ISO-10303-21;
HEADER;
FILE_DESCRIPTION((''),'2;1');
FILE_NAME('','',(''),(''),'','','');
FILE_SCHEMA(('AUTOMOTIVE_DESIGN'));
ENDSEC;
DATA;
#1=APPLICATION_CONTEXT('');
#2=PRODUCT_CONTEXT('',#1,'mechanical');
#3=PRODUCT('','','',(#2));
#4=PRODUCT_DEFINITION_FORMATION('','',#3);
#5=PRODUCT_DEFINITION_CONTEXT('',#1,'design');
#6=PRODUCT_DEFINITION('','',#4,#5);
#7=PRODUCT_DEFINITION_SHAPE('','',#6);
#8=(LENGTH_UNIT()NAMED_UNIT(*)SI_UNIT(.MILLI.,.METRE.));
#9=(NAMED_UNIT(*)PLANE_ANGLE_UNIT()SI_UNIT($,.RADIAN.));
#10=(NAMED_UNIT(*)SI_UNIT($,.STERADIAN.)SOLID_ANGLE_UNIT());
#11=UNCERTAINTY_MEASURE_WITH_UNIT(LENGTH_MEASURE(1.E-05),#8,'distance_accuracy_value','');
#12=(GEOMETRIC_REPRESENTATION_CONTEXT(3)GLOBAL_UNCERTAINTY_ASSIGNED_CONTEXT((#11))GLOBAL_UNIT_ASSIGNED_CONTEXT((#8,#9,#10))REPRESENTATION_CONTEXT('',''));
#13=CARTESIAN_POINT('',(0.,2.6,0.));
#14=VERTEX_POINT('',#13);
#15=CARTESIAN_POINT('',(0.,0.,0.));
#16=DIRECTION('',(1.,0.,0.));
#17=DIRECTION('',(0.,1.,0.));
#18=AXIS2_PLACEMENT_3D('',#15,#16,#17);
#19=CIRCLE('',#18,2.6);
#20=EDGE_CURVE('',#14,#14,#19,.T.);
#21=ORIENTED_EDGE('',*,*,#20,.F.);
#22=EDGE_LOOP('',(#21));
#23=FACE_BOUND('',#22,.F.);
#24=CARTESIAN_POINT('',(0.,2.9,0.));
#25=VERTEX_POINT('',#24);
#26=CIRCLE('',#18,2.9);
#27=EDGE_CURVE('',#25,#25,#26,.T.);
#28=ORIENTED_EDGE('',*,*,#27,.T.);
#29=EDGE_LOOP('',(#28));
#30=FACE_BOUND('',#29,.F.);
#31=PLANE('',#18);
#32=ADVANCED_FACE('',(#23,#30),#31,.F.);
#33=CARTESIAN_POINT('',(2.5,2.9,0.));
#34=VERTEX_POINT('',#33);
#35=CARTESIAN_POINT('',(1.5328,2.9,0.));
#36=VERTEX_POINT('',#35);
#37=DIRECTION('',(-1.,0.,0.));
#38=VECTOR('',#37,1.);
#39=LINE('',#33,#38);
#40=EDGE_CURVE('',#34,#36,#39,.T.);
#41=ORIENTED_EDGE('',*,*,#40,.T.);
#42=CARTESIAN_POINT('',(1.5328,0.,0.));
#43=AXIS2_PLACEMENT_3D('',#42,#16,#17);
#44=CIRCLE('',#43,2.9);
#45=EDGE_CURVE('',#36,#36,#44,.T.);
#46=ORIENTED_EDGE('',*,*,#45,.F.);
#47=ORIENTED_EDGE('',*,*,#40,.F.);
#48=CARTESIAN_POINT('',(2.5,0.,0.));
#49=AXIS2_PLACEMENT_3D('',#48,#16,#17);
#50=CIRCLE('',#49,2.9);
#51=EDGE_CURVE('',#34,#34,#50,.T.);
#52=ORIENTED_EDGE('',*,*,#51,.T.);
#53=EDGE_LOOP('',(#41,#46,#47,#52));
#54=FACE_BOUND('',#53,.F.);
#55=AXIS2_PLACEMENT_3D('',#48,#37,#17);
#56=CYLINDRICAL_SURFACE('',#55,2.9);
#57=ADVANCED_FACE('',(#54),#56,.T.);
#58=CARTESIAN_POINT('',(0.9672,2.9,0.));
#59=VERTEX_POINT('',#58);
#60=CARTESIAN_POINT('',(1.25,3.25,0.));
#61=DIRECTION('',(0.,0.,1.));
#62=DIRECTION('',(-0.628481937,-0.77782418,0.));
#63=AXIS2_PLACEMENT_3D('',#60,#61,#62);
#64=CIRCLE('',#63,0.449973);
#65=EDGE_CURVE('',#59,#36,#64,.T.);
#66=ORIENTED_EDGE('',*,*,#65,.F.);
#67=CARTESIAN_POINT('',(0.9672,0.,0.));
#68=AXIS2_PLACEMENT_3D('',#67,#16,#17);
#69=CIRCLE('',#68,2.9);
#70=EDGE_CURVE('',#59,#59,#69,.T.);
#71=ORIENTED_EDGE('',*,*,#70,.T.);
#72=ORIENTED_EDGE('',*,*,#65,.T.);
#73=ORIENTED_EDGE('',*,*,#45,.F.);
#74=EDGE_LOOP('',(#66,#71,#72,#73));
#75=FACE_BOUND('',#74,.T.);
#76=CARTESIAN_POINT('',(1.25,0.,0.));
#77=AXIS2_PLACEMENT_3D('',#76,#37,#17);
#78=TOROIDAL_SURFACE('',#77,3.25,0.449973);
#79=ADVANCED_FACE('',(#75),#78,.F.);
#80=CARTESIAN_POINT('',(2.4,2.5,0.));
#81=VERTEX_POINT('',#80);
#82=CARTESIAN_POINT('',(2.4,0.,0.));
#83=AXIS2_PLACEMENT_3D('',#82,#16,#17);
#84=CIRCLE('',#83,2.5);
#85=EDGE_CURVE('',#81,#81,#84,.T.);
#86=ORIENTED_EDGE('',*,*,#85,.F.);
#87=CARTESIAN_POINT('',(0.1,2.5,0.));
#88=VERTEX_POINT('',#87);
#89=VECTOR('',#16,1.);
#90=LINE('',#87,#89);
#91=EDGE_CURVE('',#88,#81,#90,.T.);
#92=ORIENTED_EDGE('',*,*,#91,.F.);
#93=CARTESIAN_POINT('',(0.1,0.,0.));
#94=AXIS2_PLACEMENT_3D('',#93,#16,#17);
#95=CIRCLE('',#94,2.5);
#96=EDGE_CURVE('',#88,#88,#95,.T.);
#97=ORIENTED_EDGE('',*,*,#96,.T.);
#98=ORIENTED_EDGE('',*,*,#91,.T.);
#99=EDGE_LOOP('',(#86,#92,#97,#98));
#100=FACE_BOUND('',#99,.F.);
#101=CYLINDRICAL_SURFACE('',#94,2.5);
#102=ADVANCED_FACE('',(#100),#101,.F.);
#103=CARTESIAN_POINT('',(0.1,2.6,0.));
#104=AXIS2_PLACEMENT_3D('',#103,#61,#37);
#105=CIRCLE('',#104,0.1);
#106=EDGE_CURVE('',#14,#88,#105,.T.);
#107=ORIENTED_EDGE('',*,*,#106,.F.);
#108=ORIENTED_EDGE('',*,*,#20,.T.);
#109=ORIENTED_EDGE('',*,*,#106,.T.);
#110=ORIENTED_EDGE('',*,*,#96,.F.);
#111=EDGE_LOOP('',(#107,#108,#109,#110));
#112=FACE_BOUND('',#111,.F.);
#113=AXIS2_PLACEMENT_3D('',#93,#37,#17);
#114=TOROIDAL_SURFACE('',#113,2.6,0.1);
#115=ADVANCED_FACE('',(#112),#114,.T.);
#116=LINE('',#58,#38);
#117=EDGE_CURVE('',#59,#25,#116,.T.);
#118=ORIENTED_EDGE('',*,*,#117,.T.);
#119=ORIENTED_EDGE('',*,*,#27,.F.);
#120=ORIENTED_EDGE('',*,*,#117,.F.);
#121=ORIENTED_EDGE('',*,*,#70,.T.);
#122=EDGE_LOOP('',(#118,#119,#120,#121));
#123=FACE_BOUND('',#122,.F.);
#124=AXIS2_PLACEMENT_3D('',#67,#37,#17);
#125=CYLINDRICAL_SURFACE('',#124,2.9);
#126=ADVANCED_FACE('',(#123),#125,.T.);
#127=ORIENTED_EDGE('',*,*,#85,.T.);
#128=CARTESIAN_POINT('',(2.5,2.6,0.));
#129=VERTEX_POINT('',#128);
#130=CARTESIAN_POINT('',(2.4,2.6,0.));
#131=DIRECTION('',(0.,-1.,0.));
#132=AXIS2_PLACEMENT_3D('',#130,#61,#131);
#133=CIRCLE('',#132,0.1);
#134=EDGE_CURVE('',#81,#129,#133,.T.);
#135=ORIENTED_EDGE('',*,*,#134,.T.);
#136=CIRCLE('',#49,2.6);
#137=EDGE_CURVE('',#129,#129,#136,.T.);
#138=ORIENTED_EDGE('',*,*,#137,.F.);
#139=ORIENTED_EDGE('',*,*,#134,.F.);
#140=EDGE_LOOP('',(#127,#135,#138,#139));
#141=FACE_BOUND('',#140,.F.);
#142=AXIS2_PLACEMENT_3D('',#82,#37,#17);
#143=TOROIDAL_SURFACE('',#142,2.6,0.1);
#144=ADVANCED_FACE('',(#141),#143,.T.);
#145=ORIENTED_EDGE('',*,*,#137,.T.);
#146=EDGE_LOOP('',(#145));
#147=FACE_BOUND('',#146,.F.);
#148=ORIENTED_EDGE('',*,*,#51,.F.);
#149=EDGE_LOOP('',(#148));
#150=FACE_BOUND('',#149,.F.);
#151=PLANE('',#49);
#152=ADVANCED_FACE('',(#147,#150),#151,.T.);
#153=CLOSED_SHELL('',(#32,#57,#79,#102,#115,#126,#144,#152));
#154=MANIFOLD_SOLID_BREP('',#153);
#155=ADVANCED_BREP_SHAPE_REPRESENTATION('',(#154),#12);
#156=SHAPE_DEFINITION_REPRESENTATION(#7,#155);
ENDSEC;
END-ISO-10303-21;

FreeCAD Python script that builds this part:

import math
import FreeCAD as App
import Part
import Sketcher

V = App.Vector

doc = App.newDocument("Part")
body = doc.addObject("PartDesign::Body", "Body")

sketch1 = body.newObject("Sketcher::SketchObject", "Sketch")
sketch1.AttachmentSupport = (doc.getObject("XY_Plane"), [""])
sketch1.MapMode = "FlatFace"
sketch1.addGeometry(Part.LineSegment(V(0, 2.9, 0), V(0, 2.6, 0)), False)
sketch1.addGeometry(Part.ArcOfCircle(Part.Circle(V(0.1, 2.6, 0), V(0, 0, 1), 0.1), math.radians(180), math.radians(270)), False)
sketch1.addGeometry(Part.LineSegment(V(0.1, 2.5, 0), V(2.4, 2.5, 0)), False)
sketch1.addGeometry(Part.ArcOfCircle(Part.Circle(V(2.4, 2.6, 0), V(0, 0, 1), 0.1), math.radians(-90), math.radians(0)), False)
sketch1.addGeometry(Part.LineSegment(V(2.5, 2.6, 0), V(2.5, 2.9, 0)), False)
sketch1.addGeometry(Part.LineSegment(V(2.5, 2.9, 0), V(1.5328, 2.9, 0)), False)
sketch1.addGeometry(Part.ArcOfCircle(Part.Circle(V(1.25, 3.25, 0), V(0, 0, 1), 0.449973), math.radians(-128.938211), math.radians(-51.061789)), False)
sketch1.addGeometry(Part.LineSegment(V(0.9672, 2.9, 0), V(0, 2.9, 0)), False)
sketch1.addConstraint(Sketcher.Constraint("Tangent", 0, 2, 1, 1))
sketch1.addConstraint(Sketcher.Constraint("Tangent", 1, 2, 2, 1))
sketch1.addConstraint(Sketcher.Constraint("Tangent", 2, 2, 3, 1))
sketch1.addConstraint(Sketcher.Constraint("Tangent", 3, 2, 4, 1))
sketch1.addConstraint(Sketcher.Constraint("Coincident", 4, 2, 5, 1))
sketch1.addConstraint(Sketcher.Constraint("Coincident", 5, 2, 6, 2))
sketch1.addConstraint(Sketcher.Constraint("Coincident", 6, 1, 7, 1))
sketch1.addConstraint(Sketcher.Constraint("Coincident", 7, 2, 0, 1))
sketch1.addConstraint(Sketcher.Constraint("Vertical", 0))
sketch1.addConstraint(Sketcher.Constraint("Horizontal", 2))
sketch1.addConstraint(Sketcher.Constraint("Vertical", 4))
sketch1.addConstraint(Sketcher.Constraint("Horizontal", 5))
sketch1.addConstraint(Sketcher.Constraint("Horizontal", 7))
sketch1.addConstraint(Sketcher.Constraint("Equal", 1, 3))
sketch1.addConstraint(Sketcher.Constraint("PointOnObject", 0, 2, -2))
sketch1.addConstraint(Sketcher.Constraint("Horizontal", 5, 2, 6, 1))
sketch1.addConstraint(Sketcher.Constraint("Equal", 5, 7))
sketch1.addConstraint(Sketcher.Constraint("Radius", 1, 0.1))
sketch1.addConstraint(Sketcher.Constraint("Radius", 6, 0.45))
sketch1.addConstraint(Sketcher.Constraint("DistanceX", 2, 1, 2, 2, 2.3))
sketch1.addConstraint(Sketcher.Constraint("DistanceY", 0, 2, 0, 1, 0.3))
sketch1.addConstraint(Sketcher.Constraint("DistanceY", -1, 1, 1, 3, 2.6))
sketch1.addConstraint(Sketcher.Constraint("DistanceY", -1, 1, 6, 3, 3.25))
revolution = body.newObject("PartDesign::Revolution", "Revolution")
revolution.Profile = sketch1
revolution.ReferenceAxis = (sketch1, ["H_Axis"])
revolution.Angle = 360

doc.recompute()
